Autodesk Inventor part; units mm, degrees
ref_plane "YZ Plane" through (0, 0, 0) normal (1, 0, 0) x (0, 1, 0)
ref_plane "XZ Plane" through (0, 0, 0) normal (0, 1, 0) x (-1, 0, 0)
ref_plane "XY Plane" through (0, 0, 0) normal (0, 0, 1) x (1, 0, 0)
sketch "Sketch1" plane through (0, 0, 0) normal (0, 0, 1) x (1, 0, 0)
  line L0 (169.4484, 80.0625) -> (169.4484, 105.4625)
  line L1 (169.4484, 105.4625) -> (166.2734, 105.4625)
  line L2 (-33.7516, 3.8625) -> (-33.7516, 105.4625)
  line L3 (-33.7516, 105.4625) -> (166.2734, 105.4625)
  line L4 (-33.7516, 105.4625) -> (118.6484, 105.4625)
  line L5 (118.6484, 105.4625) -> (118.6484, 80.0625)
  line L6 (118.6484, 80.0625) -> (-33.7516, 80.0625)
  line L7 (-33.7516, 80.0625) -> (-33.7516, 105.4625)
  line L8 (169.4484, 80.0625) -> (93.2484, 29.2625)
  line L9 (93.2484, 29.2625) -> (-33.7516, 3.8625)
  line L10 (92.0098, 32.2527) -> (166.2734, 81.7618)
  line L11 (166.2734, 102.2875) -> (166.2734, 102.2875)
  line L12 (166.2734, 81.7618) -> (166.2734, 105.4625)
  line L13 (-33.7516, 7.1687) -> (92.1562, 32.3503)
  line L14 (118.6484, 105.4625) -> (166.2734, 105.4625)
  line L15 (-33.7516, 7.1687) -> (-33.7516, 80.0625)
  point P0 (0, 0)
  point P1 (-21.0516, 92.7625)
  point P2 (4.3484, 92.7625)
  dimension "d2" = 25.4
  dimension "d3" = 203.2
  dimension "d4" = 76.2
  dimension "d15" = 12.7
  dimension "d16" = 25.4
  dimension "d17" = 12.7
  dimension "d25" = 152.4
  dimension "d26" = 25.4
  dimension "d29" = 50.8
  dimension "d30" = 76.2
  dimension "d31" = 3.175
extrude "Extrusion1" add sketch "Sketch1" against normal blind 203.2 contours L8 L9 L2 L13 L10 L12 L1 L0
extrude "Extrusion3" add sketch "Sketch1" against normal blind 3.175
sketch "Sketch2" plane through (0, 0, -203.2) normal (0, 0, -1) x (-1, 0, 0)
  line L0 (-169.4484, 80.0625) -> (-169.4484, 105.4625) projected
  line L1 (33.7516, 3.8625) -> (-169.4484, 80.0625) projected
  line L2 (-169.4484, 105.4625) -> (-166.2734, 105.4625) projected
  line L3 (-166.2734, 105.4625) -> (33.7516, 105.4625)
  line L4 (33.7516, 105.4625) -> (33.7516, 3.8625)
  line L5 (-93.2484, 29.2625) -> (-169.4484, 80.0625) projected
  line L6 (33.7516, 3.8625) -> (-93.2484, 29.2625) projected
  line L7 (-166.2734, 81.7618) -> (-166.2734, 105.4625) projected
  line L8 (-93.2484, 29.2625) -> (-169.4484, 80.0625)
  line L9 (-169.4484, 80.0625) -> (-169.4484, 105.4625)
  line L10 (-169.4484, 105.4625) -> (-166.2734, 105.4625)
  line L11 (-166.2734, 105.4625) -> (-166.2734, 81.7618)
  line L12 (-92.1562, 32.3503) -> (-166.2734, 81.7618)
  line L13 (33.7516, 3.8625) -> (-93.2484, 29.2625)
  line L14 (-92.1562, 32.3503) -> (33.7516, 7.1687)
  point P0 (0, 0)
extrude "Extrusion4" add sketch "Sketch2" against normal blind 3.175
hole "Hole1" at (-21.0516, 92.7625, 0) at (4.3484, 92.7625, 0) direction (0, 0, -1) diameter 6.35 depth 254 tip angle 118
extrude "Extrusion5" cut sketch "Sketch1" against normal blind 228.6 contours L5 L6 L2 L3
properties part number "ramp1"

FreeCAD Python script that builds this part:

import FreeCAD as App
import Part
import Sketcher

V = App.Vector
Q = App.Units.Quantity

doc = App.newDocument("Part")
body = doc.addObject("PartDesign::Body", "Body")

# Sketch on XY plane
sketch1 = doc.addObject("Sketcher::SketchObject", "Sketch")
body.addObject(sketch1)
sketch1.AttachmentSupport = (doc.XY_Plane, [""])
sketch1.MapMode = "FlatFace"
sketch1.addGeometry(Part.LineSegment(V(93.2484, 29.2625, 0), V(169.4484, 80.0625, 0)), False)
sketch1.addGeometry(Part.LineSegment(V(169.4484, 80.0625, 0), V(169.4484, 105.4625, 0)), False)
sketch1.addGeometry(Part.LineSegment(V(169.4484, 105.4625, 0), V(166.2734, 105.4625, 0)), False)
sketch1.addGeometry(Part.LineSegment(V(166.2734, 105.4625, 0), V(166.2734, 81.7618, 0)), False)
sketch1.addGeometry(Part.LineSegment(V(166.2734, 81.7618, 0), V(92.1562, 32.3503, 0)), False)
sketch1.addGeometry(Part.LineSegment(V(92.1562, 32.3503, 0), V(-33.7516, 7.1687, 0)), False)
sketch1.addGeometry(Part.LineSegment(V(-33.7516, 7.1687, 0), V(-33.7516, 3.8625, 0)), False)
sketch1.addGeometry(Part.LineSegment(V(-33.7516, 3.8625, 0), V(93.2484, 29.2625, 0)), False)
sketch1.addConstraint(Sketcher.Constraint("Coincident", 0, 2, 1, 1))
sketch1.addConstraint(Sketcher.Constraint("Coincident", 1, 2, 2, 1))
sketch1.addConstraint(Sketcher.Constraint("Coincident", 2, 2, 3, 1))
sketch1.addConstraint(Sketcher.Constraint("Coincident", 3, 2, 4, 1))
sketch1.addConstraint(Sketcher.Constraint("Coincident", 4, 2, 5, 1))
sketch1.addConstraint(Sketcher.Constraint("Coincident", 5, 2, 6, 1))
sketch1.addConstraint(Sketcher.Constraint("Coincident", 6, 2, 7, 1))
sketch1.addConstraint(Sketcher.Constraint("Coincident", 7, 2, 0, 1))
sketch1.addConstraint(Sketcher.Constraint("Vertical", 1))
sketch1.addConstraint(Sketcher.Constraint("Horizontal", 2))
sketch1.addConstraint(Sketcher.Constraint("Vertical", 3))
sketch1.addConstraint(Sketcher.Constraint("Vertical", 6))
sketch1.addConstraint(Sketcher.Constraint("Parallel", 0, 4))
sketch1.addConstraint(Sketcher.Constraint("Parallel", 5, 7))
sketch1.addConstraint(Sketcher.Constraint("DistanceY", 1, 1, 1, 2, Q("1 in")))
sketch1.addConstraint(Sketcher.Constraint("DistanceX", 5, 2, 0, 2, Q("8 in")))
sketch1.addConstraint(Sketcher.Constraint("DistanceY", 6, 2, 0, 2, Q("3 in")))
sketch1.addConstraint(Sketcher.Constraint("DistanceX", 7, 2, 0, 2, Q("3 in")))
sketch1.addConstraint(Sketcher.Constraint("DistanceY", 7, 2, 0, 2, Q("2 in")))
sketch1.addConstraint(Sketcher.Constraint("DistanceX", 2, 2, 2, 1, Q("0.125 in")))
sketch1.addConstraint(Sketcher.Constraint("Distance", 4, Q("3.507 in")))
sketch1.addConstraint(Sketcher.Constraint("DistanceY", 3, 2, 3, 1, Q("0.9331 in")))
sketch1.addConstraint(Sketcher.Constraint("DistanceX", -1, 1, 0, 2, Q("6.6712 in")))
sketch1.addConstraint(Sketcher.Constraint("DistanceY", -1, 1, 0, 2, 80.0625))
pad1 = doc.addObject("PartDesign::Pad", "Pad")
body.addObject(pad1)
pad1.Profile = sketch1
pad1.Length = Q("8 in")
pad1.Reversed = True

# Sketch on XY plane
sketch2 = doc.addObject("Sketcher::SketchObject", "Sketch001")
body.addObject(sketch2)
sketch2.AttachmentSupport = (doc.XY_Plane, [""])
sketch2.MapMode = "FlatFace"
sketch2.addGeometry(Part.LineSegment(V(93.2484, 29.2625, 0), V(169.4484, 80.0625, 0)), False)
sketch2.addGeometry(Part.LineSegment(V(169.4484, 80.0625, 0), V(169.4484, 105.4625, 0)), False)
sketch2.addGeometry(Part.LineSegment(V(169.4484, 105.4625, 0), V(-33.7516, 105.4625, 0)), False)
sketch2.addGeometry(Part.LineSegment(V(-33.7516, 105.4625, 0), V(-33.7516, 3.8625, 0)), False)
sketch2.addGeometry(Part.LineSegment(V(-33.7516, 3.8625, 0), V(93.2484, 29.2625, 0)), False)
sketch2.addConstraint(Sketcher.Constraint("Coincident", 0, 2, 1, 1))
sketch2.addConstraint(Sketcher.Constraint("Coincident", 1, 2, 2, 1))
sketch2.addConstraint(Sketcher.Constraint("Coincident", 2, 2, 3, 1))
sketch2.addConstraint(Sketcher.Constraint("Coincident", 3, 2, 4, 1))
sketch2.addConstraint(Sketcher.Constraint("Coincident", 4, 2, 0, 1))
sketch2.addConstraint(Sketcher.Constraint("Vertical", 1))
sketch2.addConstraint(Sketcher.Constraint("Horizontal", 2))
sketch2.addConstraint(Sketcher.Constraint("Vertical", 3))
sketch2.addConstraint(Sketcher.Constraint("DistanceX", 2, 2, 2, 1, Q("8 in")))
sketch2.addConstraint(Sketcher.Constraint("DistanceY", 1, 1, 1, 2, Q("1 in")))
sketch2.addConstraint(Sketcher.Constraint("DistanceY", 3, 2, 0, 2, Q("3 in")))
sketch2.addConstraint(Sketcher.Constraint("DistanceX", 4, 2, 0, 2, Q("3 in")))
sketch2.addConstraint(Sketcher.Constraint("DistanceY", 4, 2, 0, 2, Q("2 in")))
sketch2.addConstraint(Sketcher.Constraint("DistanceX", -1, 1, 0, 2, Q("6.6712 in")))
sketch2.addConstraint(Sketcher.Constraint("DistanceY", -1, 1, 0, 2, 80.0625))
pad2 = doc.addObject("PartDesign::Pad", "Pad001")
body.addObject(pad2)
pad2.Profile = sketch2
pad2.Length = Q("0.125 in")
pad2.Reversed = True

# Sketch on XY plane
sketch3 = doc.addObject("Sketcher::SketchObject", "Sketch002")
body.addObject(sketch3)
sketch3.AttachmentSupport = (doc.XY_Plane, [""])
sketch3.MapMode = "FlatFace"
sketch3.AttachmentOffset = App.Placement(V(0, 0, -8 * 25.4), App.Rotation())
sketch3.addGeometry(Part.LineSegment(V(169.4484, 105.4625, 0), V(169.4484, 80.0625, 0)), False)
sketch3.addGeometry(Part.LineSegment(V(169.4484, 80.0625, 0), V(93.2484, 29.2625, 0)), False)
sketch3.addGeometry(Part.LineSegment(V(93.2484, 29.2625, 0), V(-33.7516, 3.8625, 0)), False)
sketch3.addGeometry(Part.LineSegment(V(-33.7516, 3.8625, 0), V(-33.7516, 105.4625, 0)), False)
sketch3.addGeometry(Part.LineSegment(V(-33.7516, 105.4625, 0), V(169.4484, 105.4625, 0)), False)
sketch3.addConstraint(Sketcher.Constraint("Coincident", 0, 2, 1, 1))
sketch3.addConstraint(Sketcher.Constraint("Coincident", 1, 2, 2, 1))
sketch3.addConstraint(Sketcher.Constraint("Coincident", 2, 2, 3, 1))
sketch3.addConstraint(Sketcher.Constraint("Coincident", 3, 2, 4, 1))
sketch3.addConstraint(Sketcher.Constraint("Coincident", 4, 2, 0, 1))
sketch3.addConstraint(Sketcher.Constraint("Vertical", 0))
sketch3.addConstraint(Sketcher.Constraint("Vertical", 3))
sketch3.addConstraint(Sketcher.Constraint("Horizontal", 4))
sketch3.addConstraint(Sketcher.Constraint("DistanceX", 4, 1, 4, 2, Q("8 in")))
sketch3.addConstraint(Sketcher.Constraint("DistanceY", 0, 2, 0, 1, Q("1 in")))
sketch3.addConstraint(Sketcher.Constraint("DistanceY", 3, 1, 3, 2, Q("4 in")))
sketch3.addConstraint(Sketcher.Constraint("DistanceX", 1, 2, 0, 2, Q("3 in")))
sketch3.addConstraint(Sketcher.Constraint("DistanceY", 1, 2, 0, 2, Q("2 in")))
sketch3.addConstraint(Sketcher.Constraint("DistanceX", -1, 1, 0, 2, Q("6.6712 in")))
sketch3.addConstraint(Sketcher.Constraint("DistanceY", -1, 1, 0, 2, 80.0625))
pad3 = doc.addObject("PartDesign::Pad", "Pad002")
body.addObject(pad3)
pad3.Profile = sketch3
pad3.Length = Q("0.125 in")

# Sketch on XY plane
sketch4 = doc.addObject("Sketcher::SketchObject", "Sketch003")
body.addObject(sketch4)
sketch4.AttachmentSupport = (doc.XY_Plane, [""])
sketch4.MapMode = "FlatFace"
sketch4.addGeometry(Part.Circle(V(-21.0516, 92.7625, 0), V(0, 0, 1), 3.175), False)
sketch4.addGeometry(Part.Circle(V(4.3484, 92.7625, 0), V(0, 0, 1), 3.175), False)
sketch4.addConstraint(Sketcher.Constraint("Equal", 0, 1))
sketch4.addConstraint(Sketcher.Constraint("Horizontal", 0, 3, 1, 3))
sketch4.addConstraint(Sketcher.Constraint("Diameter", 0, Q("0.25 in")))
sketch4.addConstraint(Sketcher.Constraint("DistanceX", 0, 3, 1, 3, Q("1 in")))
sketch4.addConstraint(Sketcher.Constraint("DistanceX", 0, 3, -1, 1, Q("0.8288 in")))
sketch4.addConstraint(Sketcher.Constraint("DistanceY", -1, 1, 0, 3, 92.7625))
doc.recompute()
hole = doc.addObject("PartDesign::Hole", "Hole")
body.addObject(hole)
hole.Profile = sketch4
hole.ThreadType = "None"
hole.Diameter = Q("0.25 in")
hole.DepthType = "Dimension"
hole.Depth = Q("10 in")
hole.DrillPoint = "Angled"
hole.DrillPointAngle = 118

# Sketch on XY plane
sketch5 = doc.addObject("Sketcher::SketchObject", "Sketch004")
body.addObject(sketch5)
sketch5.AttachmentSupport = (doc.XY_Plane, [""])
sketch5.MapMode = "FlatFace"
sketch5.addGeometry(Part.LineSegment(V(118.6484, 80.0625, 0), V(118.6484, 105.4625, 0)), False)
sketch5.addGeometry(Part.LineSegment(V(118.6484, 105.4625, 0), V(-33.7516, 105.4625, 0)), False)
sketch5.addGeometry(Part.LineSegment(V(-33.7516, 105.4625, 0), V(-33.7516, 80.0625, 0)), False)
sketch5.addGeometry(Part.LineSegment(V(-33.7516, 80.0625, 0), V(118.6484, 80.0625, 0)), False)
sketch5.addConstraint(Sketcher.Constraint("Coincident", 0, 2, 1, 1))
sketch5.addConstraint(Sketcher.Constraint("Coincident", 1, 2, 2, 1))
sketch5.addConstraint(Sketcher.Constraint("Coincident", 2, 2, 3, 1))
sketch5.addConstraint(Sketcher.Constraint("Coincident", 3, 2, 0, 1))
sketch5.addConstraint(Sketcher.Constraint("Vertical", 0))
sketch5.addConstraint(Sketcher.Constraint("Horizontal", 1))
sketch5.addConstraint(Sketcher.Constraint("Vertical", 2))
sketch5.addConstraint(Sketcher.Constraint("Horizontal", 3))
sketch5.addConstraint(Sketcher.Constraint("DistanceX", 1, 2, 1, 1, Q("6 in")))
sketch5.addConstraint(Sketcher.Constraint("DistanceY", 0, 1, 0, 2, Q("1 in")))
sketch5.addConstraint(Sketcher.Constraint("DistanceX", -1, 1, 0, 2, Q("4.6712 in")))
sketch5.addConstraint(Sketcher.Constraint("DistanceY", -1, 1, 0, 2, 105.4625))
pocket1 = doc.addObject("PartDesign::Pocket", "Pocket")
body.addObject(pocket1)
pocket1.Profile = sketch5
pocket1.Length = Q("9 in")

doc.recompute()
